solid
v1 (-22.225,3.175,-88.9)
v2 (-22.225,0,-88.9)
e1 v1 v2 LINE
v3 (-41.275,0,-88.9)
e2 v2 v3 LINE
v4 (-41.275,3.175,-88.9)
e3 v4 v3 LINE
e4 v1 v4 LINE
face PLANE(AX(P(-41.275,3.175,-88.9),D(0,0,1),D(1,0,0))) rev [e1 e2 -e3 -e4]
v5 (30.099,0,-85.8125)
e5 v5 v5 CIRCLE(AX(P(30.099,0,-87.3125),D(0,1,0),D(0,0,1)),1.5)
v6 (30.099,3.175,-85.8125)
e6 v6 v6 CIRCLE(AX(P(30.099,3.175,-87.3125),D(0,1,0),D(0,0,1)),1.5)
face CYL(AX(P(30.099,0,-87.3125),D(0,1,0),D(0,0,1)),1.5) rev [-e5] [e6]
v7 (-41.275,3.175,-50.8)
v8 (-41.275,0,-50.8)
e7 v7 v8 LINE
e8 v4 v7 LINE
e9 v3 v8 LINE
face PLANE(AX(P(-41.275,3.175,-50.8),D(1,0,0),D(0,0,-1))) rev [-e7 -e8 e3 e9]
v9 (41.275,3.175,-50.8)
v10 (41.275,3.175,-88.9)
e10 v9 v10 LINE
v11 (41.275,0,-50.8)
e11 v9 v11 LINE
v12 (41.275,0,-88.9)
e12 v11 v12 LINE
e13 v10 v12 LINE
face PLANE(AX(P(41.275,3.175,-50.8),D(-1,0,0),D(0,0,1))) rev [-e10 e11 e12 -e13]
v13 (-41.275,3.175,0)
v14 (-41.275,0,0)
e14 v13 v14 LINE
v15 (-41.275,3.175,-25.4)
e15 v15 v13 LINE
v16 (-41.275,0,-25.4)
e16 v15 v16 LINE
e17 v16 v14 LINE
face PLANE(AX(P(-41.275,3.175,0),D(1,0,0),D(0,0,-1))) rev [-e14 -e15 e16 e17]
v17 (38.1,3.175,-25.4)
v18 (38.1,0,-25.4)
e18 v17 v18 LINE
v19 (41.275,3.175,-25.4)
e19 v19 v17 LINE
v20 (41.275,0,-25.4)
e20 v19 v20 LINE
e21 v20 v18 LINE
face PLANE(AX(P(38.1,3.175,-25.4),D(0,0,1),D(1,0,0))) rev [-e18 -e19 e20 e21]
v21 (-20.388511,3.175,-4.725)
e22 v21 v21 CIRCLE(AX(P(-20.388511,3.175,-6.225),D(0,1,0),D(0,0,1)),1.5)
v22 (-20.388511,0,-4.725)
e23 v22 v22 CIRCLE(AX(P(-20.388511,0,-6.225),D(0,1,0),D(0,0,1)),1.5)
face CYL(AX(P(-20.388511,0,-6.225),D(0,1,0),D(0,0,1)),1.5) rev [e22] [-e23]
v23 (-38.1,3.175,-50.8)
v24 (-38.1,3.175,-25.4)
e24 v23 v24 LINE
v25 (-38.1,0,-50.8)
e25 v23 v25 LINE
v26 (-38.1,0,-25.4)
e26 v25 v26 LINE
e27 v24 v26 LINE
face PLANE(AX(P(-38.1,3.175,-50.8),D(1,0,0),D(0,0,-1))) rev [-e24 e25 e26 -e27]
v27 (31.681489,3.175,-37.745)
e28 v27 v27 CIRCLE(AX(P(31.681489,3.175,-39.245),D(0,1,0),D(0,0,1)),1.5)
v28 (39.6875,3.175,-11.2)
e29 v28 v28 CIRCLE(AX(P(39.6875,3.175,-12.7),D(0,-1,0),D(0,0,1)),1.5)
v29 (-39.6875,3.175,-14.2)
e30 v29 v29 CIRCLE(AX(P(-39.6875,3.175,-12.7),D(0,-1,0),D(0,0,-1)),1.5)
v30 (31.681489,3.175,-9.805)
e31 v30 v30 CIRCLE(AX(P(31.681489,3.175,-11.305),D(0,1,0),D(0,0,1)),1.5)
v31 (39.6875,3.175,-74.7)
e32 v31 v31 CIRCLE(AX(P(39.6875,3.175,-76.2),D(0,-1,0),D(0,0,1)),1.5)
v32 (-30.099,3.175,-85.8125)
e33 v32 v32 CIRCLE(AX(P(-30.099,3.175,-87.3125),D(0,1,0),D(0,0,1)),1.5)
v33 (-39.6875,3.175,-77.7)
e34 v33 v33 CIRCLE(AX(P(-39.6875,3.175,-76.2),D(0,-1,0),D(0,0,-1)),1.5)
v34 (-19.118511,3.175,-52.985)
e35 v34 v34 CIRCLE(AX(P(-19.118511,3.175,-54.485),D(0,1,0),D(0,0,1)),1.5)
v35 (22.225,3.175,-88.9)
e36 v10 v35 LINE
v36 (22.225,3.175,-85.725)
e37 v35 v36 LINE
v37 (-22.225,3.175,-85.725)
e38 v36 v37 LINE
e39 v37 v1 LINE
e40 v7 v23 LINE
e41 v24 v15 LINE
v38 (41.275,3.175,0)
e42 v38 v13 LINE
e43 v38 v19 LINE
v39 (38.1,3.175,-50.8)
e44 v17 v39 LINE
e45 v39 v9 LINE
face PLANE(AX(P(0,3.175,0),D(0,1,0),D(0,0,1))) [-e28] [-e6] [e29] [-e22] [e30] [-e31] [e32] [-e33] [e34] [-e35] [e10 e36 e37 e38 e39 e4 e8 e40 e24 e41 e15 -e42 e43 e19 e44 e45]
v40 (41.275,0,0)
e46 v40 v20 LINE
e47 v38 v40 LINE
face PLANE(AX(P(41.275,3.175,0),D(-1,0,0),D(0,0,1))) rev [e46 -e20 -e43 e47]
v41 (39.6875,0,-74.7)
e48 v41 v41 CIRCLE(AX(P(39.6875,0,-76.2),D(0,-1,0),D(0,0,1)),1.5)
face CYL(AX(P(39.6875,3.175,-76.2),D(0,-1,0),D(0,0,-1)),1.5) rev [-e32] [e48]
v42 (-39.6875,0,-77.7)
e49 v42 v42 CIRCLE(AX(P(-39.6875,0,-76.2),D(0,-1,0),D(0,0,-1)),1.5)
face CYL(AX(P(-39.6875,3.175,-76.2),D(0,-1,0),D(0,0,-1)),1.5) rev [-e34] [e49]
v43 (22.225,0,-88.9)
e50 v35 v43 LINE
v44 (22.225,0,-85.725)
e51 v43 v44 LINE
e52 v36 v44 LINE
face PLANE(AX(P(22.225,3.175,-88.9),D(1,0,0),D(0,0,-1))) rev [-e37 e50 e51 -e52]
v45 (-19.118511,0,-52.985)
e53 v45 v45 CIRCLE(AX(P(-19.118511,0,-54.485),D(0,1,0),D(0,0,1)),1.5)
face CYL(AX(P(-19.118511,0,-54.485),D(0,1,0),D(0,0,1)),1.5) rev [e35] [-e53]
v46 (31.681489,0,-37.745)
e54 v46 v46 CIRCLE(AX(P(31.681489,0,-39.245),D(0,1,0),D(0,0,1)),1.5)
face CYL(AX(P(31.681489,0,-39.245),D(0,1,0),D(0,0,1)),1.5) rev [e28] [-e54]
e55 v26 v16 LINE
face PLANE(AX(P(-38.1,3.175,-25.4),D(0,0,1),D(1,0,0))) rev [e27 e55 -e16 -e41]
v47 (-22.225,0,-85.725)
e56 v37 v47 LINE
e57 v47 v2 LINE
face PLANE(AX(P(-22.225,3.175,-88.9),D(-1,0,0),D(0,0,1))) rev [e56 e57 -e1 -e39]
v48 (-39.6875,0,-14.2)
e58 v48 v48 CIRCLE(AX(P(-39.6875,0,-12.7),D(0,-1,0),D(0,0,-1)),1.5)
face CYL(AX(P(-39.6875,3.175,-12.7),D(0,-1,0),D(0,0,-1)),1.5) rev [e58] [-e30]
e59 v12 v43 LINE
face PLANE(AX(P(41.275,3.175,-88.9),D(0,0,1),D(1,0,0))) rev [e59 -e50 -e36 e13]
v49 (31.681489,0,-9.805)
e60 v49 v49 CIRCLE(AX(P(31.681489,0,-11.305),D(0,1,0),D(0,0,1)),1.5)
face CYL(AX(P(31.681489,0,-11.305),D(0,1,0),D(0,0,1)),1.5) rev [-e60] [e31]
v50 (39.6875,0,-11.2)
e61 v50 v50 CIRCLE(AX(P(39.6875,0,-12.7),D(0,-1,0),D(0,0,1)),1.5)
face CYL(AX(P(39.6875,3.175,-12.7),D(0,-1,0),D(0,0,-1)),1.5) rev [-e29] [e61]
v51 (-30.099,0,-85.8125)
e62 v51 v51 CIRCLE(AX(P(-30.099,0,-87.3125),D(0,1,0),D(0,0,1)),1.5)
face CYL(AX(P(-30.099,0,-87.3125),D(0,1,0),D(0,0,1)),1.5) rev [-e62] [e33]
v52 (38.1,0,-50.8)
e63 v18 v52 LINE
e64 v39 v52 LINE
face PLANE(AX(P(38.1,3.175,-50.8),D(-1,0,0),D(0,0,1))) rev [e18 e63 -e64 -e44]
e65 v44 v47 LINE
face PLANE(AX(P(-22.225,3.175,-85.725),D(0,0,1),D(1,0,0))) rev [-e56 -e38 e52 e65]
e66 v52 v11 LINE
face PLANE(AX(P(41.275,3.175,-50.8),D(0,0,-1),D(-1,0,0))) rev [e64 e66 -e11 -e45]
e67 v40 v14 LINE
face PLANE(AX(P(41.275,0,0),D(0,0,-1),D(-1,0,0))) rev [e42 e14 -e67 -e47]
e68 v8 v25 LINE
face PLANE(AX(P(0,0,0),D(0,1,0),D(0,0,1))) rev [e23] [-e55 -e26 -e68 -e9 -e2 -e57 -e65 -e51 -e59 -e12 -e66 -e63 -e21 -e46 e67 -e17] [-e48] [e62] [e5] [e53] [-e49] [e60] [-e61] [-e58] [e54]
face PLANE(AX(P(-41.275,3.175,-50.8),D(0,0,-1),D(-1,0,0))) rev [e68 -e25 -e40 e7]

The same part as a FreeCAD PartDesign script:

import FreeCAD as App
import Part
import Sketcher
Q = App.Units.Quantity

doc = App.newDocument("Part")
body = doc.addObject("PartDesign::Body", "Body")

# Sketch on XZ plane
sketch1 = body.newObject("Sketcher::SketchObject", "Sketch")
sketch1.AttachmentSupport = (doc.getObject("XZ_Plane"), [""])
sketch1.MapMode = "FlatFace"
sketch1.addGeometry([
    Part.LineSegment(App.Vector(-41.3, 0, 0), App.Vector(-36.4, 11.7, 0)),  # 0
    Part.LineSegment(App.Vector(-36.4, 11.7, 0), App.Vector(-33.5, 10.4, 0)),  # 1
    Part.LineSegment(App.Vector(-33.5, 10.4, 0), App.Vector(-17.9, 45.5, 0)),  # 2
    Part.LineSegment(App.Vector(-17.9, 45.5, 0), App.Vector(-20.8, 46.8, 0)),  # 3
    Part.LineSegment(App.Vector(-20.8, 46.8, 0), App.Vector(-15.6, 58.4, 0)),  # 4
    Part.LineSegment(App.Vector(-15.6, 58.4, 0), App.Vector(-12.7, 60.3, 0)),  # 5
    Part.LineSegment(App.Vector(-12.7, 60.3, 0), App.Vector(-5.1, 60.3, 0)),  # 6
    Part.LineSegment(App.Vector(-5.1, 60.3, 0), App.Vector(-5.1, 57.1, 0)),  # 7
    Part.LineSegment(App.Vector(-5.1, 57.1, 0), App.Vector(5.1, 57.1, 0)),  # 8
    Part.LineSegment(App.Vector(5.1, 57.1, 0), App.Vector(5.1, 60.3, 0)),  # 9
    Part.LineSegment(App.Vector(5.1, 60.3, 0), App.Vector(12.7, 60.3, 0)),  # 10
    Part.LineSegment(App.Vector(12.7, 60.3, 0), App.Vector(15.6, 58.4, 0)),  # 11
    Part.LineSegment(App.Vector(15.6, 58.4, 0), App.Vector(20.8, 46.8, 0)),  # 12
    Part.LineSegment(App.Vector(20.8, 46.8, 0), App.Vector(17.9, 45.5, 0)),  # 13
    Part.LineSegment(App.Vector(17.9, 45.5, 0), App.Vector(33.5, 10.4, 0)),  # 14
    Part.LineSegment(App.Vector(33.5, 10.4, 0), App.Vector(36.4, 11.7, 0)),  # 15
    Part.LineSegment(App.Vector(36.4, 11.7, 0), App.Vector(41.3, 0, 0)),  # 16
    Part.LineSegment(App.Vector(41.3, 0, 0), App.Vector(41.3, -25.4, 0)),  # 17
    Part.LineSegment(App.Vector(41.3, -25.4, 0), App.Vector(38.1, -25.4, 0)),  # 18
    Part.LineSegment(App.Vector(38.1, -25.4, 0), App.Vector(38.1, -50.8, 0)),  # 19
    Part.LineSegment(App.Vector(38.1, -50.8, 0), App.Vector(41.3, -50.8, 0)),  # 20
    Part.LineSegment(App.Vector(41.3, -50.8, 0), App.Vector(41.3, -88.9, 0)),  # 21
    Part.LineSegment(App.Vector(41.3, -88.9, 0), App.Vector(22.2, -88.9, 0)),  # 22
    Part.LineSegment(App.Vector(22.2, -88.9, 0), App.Vector(22.2, -85.7, 0)),  # 23
    Part.LineSegment(App.Vector(22.2, -85.7, 0), App.Vector(-22.2, -85.7, 0)),  # 24
    Part.LineSegment(App.Vector(-22.2, -85.7, 0), App.Vector(-22.2, -88.9, 0)),  # 25
    Part.LineSegment(App.Vector(-22.2, -88.9, 0), App.Vector(-41.3, -88.9, 0)),  # 26
    Part.LineSegment(App.Vector(-41.3, -88.9, 0), App.Vector(-41.3, -50.8, 0)),  # 27
    Part.LineSegment(App.Vector(-41.3, -50.8, 0), App.Vector(-38.1, -50.8, 0)),  # 28
    Part.LineSegment(App.Vector(-38.1, -50.8, 0), App.Vector(-38.1, -25.4, 0)),  # 29
    Part.LineSegment(App.Vector(-38.1, -25.4, 0), App.Vector(-41.3, -25.4, 0)),  # 30
    Part.LineSegment(App.Vector(-41.3, -25.4, 0), App.Vector(-41.3, 0, 0)),  # 31
], False)
sketch1.addConstraint([
    Sketcher.Constraint("Coincident", 0, 2, 1, 1),
    Sketcher.Constraint("Coincident", 1, 2, 2, 1),
    Sketcher.Constraint("Coincident", 2, 2, 3, 1),
    Sketcher.Constraint("Coincident", 3, 2, 4, 1),
    Sketcher.Constraint("Coincident", 4, 2, 5, 1),
    Sketcher.Constraint("Coincident", 5, 2, 6, 1),
    Sketcher.Constraint("Coincident", 6, 2, 7, 1),
    Sketcher.Constraint("Coincident", 7, 2, 8, 1),
    Sketcher.Constraint("Coincident", 8, 2, 9, 1),
    Sketcher.Constraint("Coincident", 9, 2, 10, 1),
    Sketcher.Constraint("Coincident", 10, 2, 11, 1),
    Sketcher.Constraint("Coincident", 11, 2, 12, 1),
    Sketcher.Constraint("Coincident", 12, 2, 13, 1),
    Sketcher.Constraint("Coincident", 13, 2, 14, 1),
    Sketcher.Constraint("Coincident", 14, 2, 15, 1),
    Sketcher.Constraint("Coincident", 15, 2, 16, 1),
    Sketcher.Constraint("Coincident", 16, 2, 17, 1),
    Sketcher.Constraint("Coincident", 17, 2, 18, 1),
    Sketcher.Constraint("Coincident", 18, 2, 19, 1),
    Sketcher.Constraint("Coincident", 19, 2, 20, 1),
    Sketcher.Constraint("Coincident", 20, 2, 21, 1),
    Sketcher.Constraint("Coincident", 21, 2, 22, 1),
    Sketcher.Constraint("Coincident", 22, 2, 23, 1),
    Sketcher.Constraint("Coincident", 23, 2, 24, 1),
    Sketcher.Constraint("Coincident", 24, 2, 25, 1),
    Sketcher.Constraint("Coincident", 25, 2, 26, 1),
    Sketcher.Constraint("Coincident", 26, 2, 27, 1),
    Sketcher.Constraint("Coincident", 27, 2, 28, 1),
    Sketcher.Constraint("Coincident", 28, 2, 29, 1),
    Sketcher.Constraint("Coincident", 29, 2, 30, 1),
    Sketcher.Constraint("Coincident", 30, 2, 31, 1),
    Sketcher.Constraint("Coincident", 31, 2, 0, 1),
    Sketcher.Constraint("Horizontal", 6),
    Sketcher.Constraint("Vertical", 7),
    Sketcher.Constraint("Horizontal", 8),
    Sketcher.Constraint("Vertical", 9),
    Sketcher.Constraint("Horizontal", 10),
    Sketcher.Constraint("Vertical", 17),
    Sketcher.Constraint("Horizontal", 18),
    Sketcher.Constraint("Vertical", 19),
    Sketcher.Constraint("Horizontal", 20),
    Sketcher.Constraint("Vertical", 21),
    Sketcher.Constraint("Horizontal", 22),
    Sketcher.Constraint("Vertical", 23),
    Sketcher.Constraint("Horizontal", 24),
    Sketcher.Constraint("Vertical", 25),
    Sketcher.Constraint("Horizontal", 26),
    Sketcher.Constraint("Vertical", 27),
    Sketcher.Constraint("Horizontal", 28),
    Sketcher.Constraint("Vertical", 29),
    Sketcher.Constraint("Horizontal", 30),
    Sketcher.Constraint("Vertical", 31),
    Sketcher.Constraint("Symmetric", 16, 2, 31, 2, -1, 1),
    Sketcher.Constraint("Symmetric", 6, 2, 9, 2, -2),
    Sketcher.Constraint("Symmetric", 4, 2, 11, 2, -2),
    Sketcher.Constraint("Symmetric", 3, 2, 12, 2, -2),
    Sketcher.Constraint("Symmetric", 2, 2, 13, 2, -2),
    Sketcher.Constraint("Symmetric", 1, 2, 14, 2, -2),
    Sketcher.Constraint("Symmetric", 0, 2, 15, 2, -2),
    Sketcher.Constraint("Symmetric", 22, 2, 25, 2, -2),
    Sketcher.Constraint("Symmetric", 20, 2, 27, 2, -2),
    Sketcher.Constraint("Symmetric", 18, 2, 29, 2, -2),
    Sketcher.Constraint("PointOnObject", 16, 2, -1),
    Sketcher.Constraint("Perpendicular", 1, 2),
    Sketcher.Constraint("Perpendicular", 2, 3),
    Sketcher.Constraint("Perpendicular", 3, 4),
    Sketcher.Constraint("Vertical", 17, 2, 20, 2),
    Sketcher.Constraint("Equal", 6, 10),
    Sketcher.Constraint("Equal", 30, 7),
    Sketcher.Constraint("Equal", 17, 19),
    Sketcher.Constraint("Equal", 9, 23),
    Sketcher.Constraint("Equal", 1, 3),
    Sketcher.Constraint("Equal", 0, 4),
    Sketcher.Constraint("DistanceY", 17, 2, 17, 1, Q("1 in")),
    Sketcher.Constraint("DistanceX", 6, 1, 6, 2, Q("0.3 in")),
    Sketcher.Constraint("DistanceX", 8, 1, 8, 2, Q("0.4 in")),
    Sketcher.Constraint("DistanceY", 21, 2, 21, 1, Q("1.5 in")),
    Sketcher.Constraint("Distance", 0, Q("0.5 in")),
    Sketcher.Constraint("DistanceX", 22, 2, 22, 1, Q("0.75 in")),
    Sketcher.Constraint("DistanceX", 24, 2, 24, 1, Q("1.75 in")),
    Sketcher.Constraint("DistanceX", -1, 1, 18, 2, Q("1.5 in")),
    Sketcher.Constraint("DistanceY", -1, 1, 7, 2, Q("2.25 in")),
    Sketcher.Constraint("Distance", 1, Q("0.125 in")),
    Sketcher.Constraint("Distance", 5, Q("3.460201 mm")),
    Sketcher.Constraint("DistanceX", 0, 2, -1, 1, Q("36.368302 mm")),
    Sketcher.Constraint("DistanceX", 1, 2, 4, 2, Q("17.865599 mm")),
])
pad1 = body.newObject("PartDesign::Pad", "Pad")
pad1.Profile = sketch1
pad1.Length = Q("0.125 in")
pad1.Reversed = True

# Sketch on XZ plane
sketch2 = body.newObject("Sketcher::SketchObject", "Sketch001")
sketch2.AttachmentSupport = (doc.getObject("XZ_Plane"), [""])
sketch2.MapMode = "FlatFace"
sketch2.addGeometry([
    Part.Circle(App.Vector(-39.7, -76.2, 0), App.Vector(0, 0, 1), 1.5),  # 0
    Part.Circle(App.Vector(8.9, 58.7, 0), App.Vector(0, 0, 1), 1.5),  # 1
    Part.Circle(App.Vector(-39.7, -12.7, 0), App.Vector(0, 0, 1), 1.5),  # 2
    Part.Circle(App.Vector(-37.5, 5.3, 0), App.Vector(0, 0, 1), 1.5),  # 3
    Part.Circle(App.Vector(-16.7, 52, 0), App.Vector(0, 0, 1), 1.5),  # 4
    Part.Circle(App.Vector(-8.9, 58.7, 0), App.Vector(0, 0, 1), 1.5),  # 5
    Part.Circle(App.Vector(16.7, 52, 0), App.Vector(0, 0, 1), 1.5),  # 6
    Part.Circle(App.Vector(37.5, 5.3, 0), App.Vector(0, 0, 1), 1.5),  # 7
    Part.Circle(App.Vector(39.7, -12.7, 0), App.Vector(0, 0, 1), 1.5),  # 8
    Part.Circle(App.Vector(39.7, -76.2, 0), App.Vector(0, 0, 1), 1.5),  # 9
], False)
sketch2.addConstraint([
    Sketcher.Constraint("Equal", 0, 1),
    Sketcher.Constraint("Equal", 1, 2),
    Sketcher.Constraint("Equal", 2, 3),
    Sketcher.Constraint("Equal", 3, 4),
    Sketcher.Constraint("Equal", 4, 5),
    Sketcher.Constraint("Equal", 5, 6),
    Sketcher.Constraint("Equal", 6, 7),
    Sketcher.Constraint("Equal", 7, 8),
    Sketcher.Constraint("Equal", 8, 9),
    Sketcher.Constraint("Symmetric", 1, 3, 5, 3, -2),
    Sketcher.Constraint("Symmetric", 4, 3, 6, 3, -2),
    Sketcher.Constraint("Symmetric", 3, 3, 7, 3, -2),
    Sketcher.Constraint("Symmetric", 2, 3, 8, 3, -2),
    Sketcher.Constraint("Symmetric", 0, 3, 9, 3, -2),
    Sketcher.Constraint("Vertical", 0, 3, 2, 3),
    Sketcher.Constraint("DistanceY", 0, 3, -1, 1, Q("3 in")),
    Sketcher.Constraint("DistanceY", 2, 3, -1, 1, Q("0.5 in")),
    Sketcher.Constraint("DistanceX", 5, 3, 1, 3, Q("0.7 in")),
    Sketcher.Constraint("Diameter", 0, Q("3 mm")),
    Sketcher.Constraint("DistanceX", 0, 3, -1, 1, Q("1.5625 in")),
    Sketcher.Constraint("DistanceY", -1, 1, 1, 3, Q("2.3125 in")),
    Sketcher.Constraint("DistanceY", -1, 1, 4, 3, Q("51.992041 mm")),
    Sketcher.Constraint("DistanceX", 3, 3, 4, 3, Q("20.76695 mm")),
    Sketcher.Constraint("DistanceY", 3, 3, 4, 3, Q("46.725638 mm")),
    Sketcher.Constraint("DistanceX", 4, 3, 6, 3, Q("33.45931 mm")),
])
pocket1 = body.newObject("PartDesign::Pocket", "Pocket")
pocket1.Profile = sketch2
pocket1.Type = "ThroughAll"

# Sketch on XZ plane
sketch3 = body.newObject("Sketcher::SketchObject", "Sketch002")
sketch3.AttachmentSupport = (doc.getObject("XZ_Plane"), [""])
sketch3.MapMode = "FlatFace"
sketch3.AttachmentOffset = App.Placement(App.Vector(0, 0, -0.125 * 25.4), App.Rotation())
sketch3.addGeometry([
    Part.Circle(App.Vector(31.7, -11.3, 0), App.Vector(0, 0, 1), 1.5),
    Part.Circle(App.Vector(31.7, -39.2, 0), App.Vector(0, 0, 1), 1.5),
    Part.Circle(App.Vector(-20.4, -6.2, 0), App.Vector(0, 0, 1), 1.5),
    Part.Circle(App.Vector(-19.1, -54.5, 0), App.Vector(0, 0, 1), 1.5),
], False)
sketch3.addConstraint([
    Sketcher.Constraint("Equal", 0, 1),
    Sketcher.Constraint("Equal", 1, 2),
    Sketcher.Constraint("Equal", 2, 3),
    Sketcher.Constraint("Vertical", 0, 3, 1, 3),
    Sketcher.Constraint("DistanceX", 3, 3, 1, 3, Q("2 in")),
    Sketcher.Constraint("DistanceY", 1, 3, 0, 3, Q("1.1 in")),
    Sketcher.Constraint("DistanceY", 0, 3, 2, 3, Q("0.2 in")),
    Sketcher.Constraint("DistanceY", 3, 3, 2, 3, Q("1.9 in")),
    Sketcher.Constraint("Diameter", 0, Q("3 mm")),
    Sketcher.Constraint("DistanceX", 2, 3, 0, 3, Q("2.05 in")),
    Sketcher.Constraint("DistanceY", 0, 3, -1, 1, Q("11.305 mm")),
    Sketcher.Constraint("DistanceX", -1, 1, 0, 3, Q("31.681489 mm")),
])
pocket2 = body.newObject("PartDesign::Pocket", "Pocket001")
pocket2.Profile = sketch3
pocket2.Type = "ThroughAll"
pocket2.Reversed = True

# Sketch on XZ plane
sketch4 = body.newObject("Sketcher::SketchObject", "Sketch003")
sketch4.AttachmentSupport = (doc.getObject("XZ_Plane"), [""])
sketch4.MapMode = "FlatFace"
sketch4.AttachmentOffset = App.Placement(App.Vector(0, 0, -0.125 * 25.4), App.Rotation())
sketch4.addGeometry([
    Part.LineSegment(App.Vector(-41, 0, 0), App.Vector(-41, 60, 0)),
    Part.LineSegment(App.Vector(-41, 60, 0), App.Vector(41, 60, 0)),
    Part.LineSegment(App.Vector(41, 60, 0), App.Vector(41, 0, 0)),
    Part.LineSegment(App.Vector(41, 0, 0), App.Vector(-41, 0, 0)),
], False)
sketch4.addConstraint([
    Sketcher.Constraint("Coincident", 0, 2, 1, 1),
    Sketcher.Constraint("Coincident", 1, 2, 2, 1),
    Sketcher.Constraint("Coincident", 2, 2, 3, 1),
    Sketcher.Constraint("Coincident", 3, 2, 0, 1),
    Sketcher.Constraint("Vertical", 0),
    Sketcher.Constraint("Horizontal", 1),
    Sketcher.Constraint("Vertical", 2),
    Sketcher.Constraint("Horizontal", 3),
    Sketcher.Constraint("Symmetric", 2, 2, 3, 2, -1, 1),
    Sketcher.Constraint("DistanceX", 1, 1, 1, 2, Q("3.25 in")),
    Sketcher.Constraint("DistanceY", 0, 1, 0, 2, Q("2.375 in")),
])
pocket3 = body.newObject("PartDesign::Pocket", "Pocket002")
pocket3.Profile = sketch4
pocket3.Type = "ThroughAll"
pocket3.Reversed = True

# Sketch on XZ plane
sketch5 = body.newObject("Sketcher::SketchObject", "Sketch004")
sketch5.AttachmentSupport = (doc.getObject("XZ_Plane"), [""])
sketch5.MapMode = "FlatFace"
sketch5.AttachmentOffset = App.Placement(App.Vector(0, 0, -0.125 * 25.4), App.Rotation())
sketch5.addGeometry([
    Part.Circle(App.Vector(-30.1, -87.3, 0), App.Vector(0, 0, 1), 1.5),
    Part.Circle(App.Vector(30.1, -87.3, 0), App.Vector(0, 0, 1), 1.5),
], False)
sketch5.addConstraint([
    Sketcher.Constraint("Equal", 0, 1),
    Sketcher.Constraint("Symmetric", 0, 3, 1, 3, -2),
    Sketcher.Constraint("Diameter", 0, Q("3 mm")),
    Sketcher.Constraint("DistanceX", 0, 3, 1, 3, Q("2.37 in")),
    Sketcher.Constraint("DistanceY", 0, 3, -1, 1, Q("3.4375 in")),
])
pocket4 = body.newObject("PartDesign::Pocket", "Pocket003")
pocket4.Profile = sketch5
pocket4.Type = "ThroughAll"
pocket4.Reversed = True

doc.recompute()
